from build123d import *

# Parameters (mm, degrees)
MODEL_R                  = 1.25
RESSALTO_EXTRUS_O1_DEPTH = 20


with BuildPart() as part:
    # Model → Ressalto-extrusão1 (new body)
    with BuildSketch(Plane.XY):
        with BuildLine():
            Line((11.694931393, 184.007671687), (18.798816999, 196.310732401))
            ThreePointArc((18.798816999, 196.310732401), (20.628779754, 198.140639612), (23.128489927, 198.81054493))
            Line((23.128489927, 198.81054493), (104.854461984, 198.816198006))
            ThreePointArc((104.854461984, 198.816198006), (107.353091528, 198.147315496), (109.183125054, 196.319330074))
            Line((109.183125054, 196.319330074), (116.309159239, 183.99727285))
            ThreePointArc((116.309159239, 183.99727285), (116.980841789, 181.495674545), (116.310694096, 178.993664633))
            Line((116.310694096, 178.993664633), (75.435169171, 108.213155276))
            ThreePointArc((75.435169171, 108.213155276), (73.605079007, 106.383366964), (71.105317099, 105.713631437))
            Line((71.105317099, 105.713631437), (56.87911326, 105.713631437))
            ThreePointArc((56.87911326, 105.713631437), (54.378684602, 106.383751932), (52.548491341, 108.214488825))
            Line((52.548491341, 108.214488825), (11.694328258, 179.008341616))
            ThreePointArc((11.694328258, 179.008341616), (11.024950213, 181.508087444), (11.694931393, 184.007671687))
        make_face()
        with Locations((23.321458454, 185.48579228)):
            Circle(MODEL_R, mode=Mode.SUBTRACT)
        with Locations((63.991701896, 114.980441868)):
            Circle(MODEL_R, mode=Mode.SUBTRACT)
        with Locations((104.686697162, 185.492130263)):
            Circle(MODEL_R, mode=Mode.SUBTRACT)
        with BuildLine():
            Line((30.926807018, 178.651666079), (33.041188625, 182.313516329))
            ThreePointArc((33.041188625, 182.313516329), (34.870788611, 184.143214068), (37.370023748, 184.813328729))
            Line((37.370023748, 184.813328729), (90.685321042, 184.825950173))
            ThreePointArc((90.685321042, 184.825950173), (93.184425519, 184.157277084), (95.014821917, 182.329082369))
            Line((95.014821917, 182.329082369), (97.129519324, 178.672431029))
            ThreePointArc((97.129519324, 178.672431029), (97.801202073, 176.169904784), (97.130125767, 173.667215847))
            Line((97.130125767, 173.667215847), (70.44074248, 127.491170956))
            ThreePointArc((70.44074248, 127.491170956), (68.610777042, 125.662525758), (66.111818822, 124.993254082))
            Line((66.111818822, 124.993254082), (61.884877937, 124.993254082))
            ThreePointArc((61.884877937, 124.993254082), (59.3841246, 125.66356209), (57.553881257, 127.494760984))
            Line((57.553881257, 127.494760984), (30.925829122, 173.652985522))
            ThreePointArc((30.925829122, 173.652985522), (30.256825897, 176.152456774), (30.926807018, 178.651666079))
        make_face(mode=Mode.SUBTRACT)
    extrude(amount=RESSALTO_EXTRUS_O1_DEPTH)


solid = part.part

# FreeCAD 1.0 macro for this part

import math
import FreeCAD as App
import Part
import Sketcher
from FreeCAD import Vector
Q = App.Units.Quantity

doc = App.newDocument("Part")
body = doc.addObject("PartDesign::Body", "Body")

sketch1 = body.newObject("Sketcher::SketchObject", "Sketch")
sketch1.AttachmentSupport = (doc.getObject("XY_Plane"), [""])
sketch1.MapMode = "FlatFace"
sketch1.addGeometry([
    Part.LineSegment(Vector(18.8, 196.3, 0), Vector(11.7, 184, 0)),
    Part.ArcOfCircle(Part.Circle(Vector(16, 181.5, 0), Vector(0, 0, 1), 5), math.radians(150), math.radians(210)),
    Part.LineSegment(Vector(11.7, 179, 0), Vector(52.5, 108.2, 0)),
    Part.ArcOfCircle(Part.Circle(Vector(56.9, 110.7, 0), Vector(0, 0, 1), 5), math.radians(-150), math.radians(-90)),
    Part.LineSegment(Vector(56.9, 105.7, 0), Vector(71.1, 105.7, 0)),
    Part.ArcOfCircle(Part.Circle(Vector(71.1, 110.7, 0), Vector(0, 0, 1), 5), math.radians(-90), math.radians(-30)),
    Part.LineSegment(Vector(75.4, 108.2, 0), Vector(116.3, 179, 0)),
    Part.ArcOfCircle(Part.Circle(Vector(112, 181.5, 0), Vector(0, 0, 1), 5), math.radians(-30), math.radians(30)),
    Part.LineSegment(Vector(116.3, 184, 0), Vector(109.2, 196.3, 0)),
    Part.ArcOfCircle(Part.Circle(Vector(104.9, 193.8, 0), Vector(0, 0, 1), 5), math.radians(30), math.radians(90)),
    Part.LineSegment(Vector(104.9, 198.8, 0), Vector(23.1, 198.8, 0)),
    Part.ArcOfCircle(Part.Circle(Vector(23.1, 193.8, 0), Vector(0, 0, 1), 5), math.radians(90), math.radians(150)),
    Part.Circle(Vector(64, 115, 0), Vector(0, 0, 1), 1.2),
    Part.LineSegment(Vector(30.9, 178.7, 0), Vector(33, 182.3, 0)),
    Part.ArcOfCircle(Part.Circle(Vector(37.4, 179.8, 0), Vector(0, 0, 1), 5), math.radians(90), math.radians(150)),
    Part.LineSegment(Vector(37.4, 184.8, 0), Vector(90.7, 184.8, 0)),
    Part.ArcOfCircle(Part.Circle(Vector(90.7, 179.8, 0), Vector(0, 0, 1), 5), math.radians(30), math.radians(90)),
    Part.LineSegment(Vector(95, 182.3, 0), Vector(97.1, 178.7, 0)),
    Part.ArcOfCircle(Part.Circle(Vector(92.8, 176.2, 0), Vector(0, 0, 1), 5), math.radians(-30), math.radians(30)),
    Part.LineSegment(Vector(97.1, 173.7, 0), Vector(70.4, 127.5, 0)),
    Part.ArcOfCircle(Part.Circle(Vector(66.1, 130, 0), Vector(0, 0, 1), 5), math.radians(-90), math.radians(-30)),
    Part.LineSegment(Vector(66.1, 125, 0), Vector(61.9, 125, 0)),
    Part.ArcOfCircle(Part.Circle(Vector(61.9, 130, 0), Vector(0, 0, 1), 5), math.radians(-150), math.radians(-90)),
    Part.LineSegment(Vector(57.6, 127.5, 0), Vector(30.9, 173.7, 0)),
    Part.ArcOfCircle(Part.Circle(Vector(35.3, 176.2, 0), Vector(0, 0, 1), 5), math.radians(150), math.radians(210)),
    Part.Circle(Vector(104.7, 185.5, 0), Vector(0, 0, 1), 1.2),
    Part.Circle(Vector(23.3, 185.5, 0), Vector(0, 0, 1), 1.2),
], False)
sketch1.addConstraint([
    Sketcher.Constraint("Tangent", 0, 2, 1, 1),
    Sketcher.Constraint("Tangent", 1, 2, 2, 1),
    Sketcher.Constraint("Tangent", 2, 2, 3, 1),
    Sketcher.Constraint("Tangent", 3, 2, 4, 1),
    Sketcher.Constraint("Tangent", 4, 2, 5, 1),
    Sketcher.Constraint("Tangent", 5, 2, 6, 1),
    Sketcher.Constraint("Tangent", 6, 2, 7, 1),
    Sketcher.Constraint("Tangent", 7, 2, 8, 1),
    Sketcher.Constraint("Tangent", 8, 2, 9, 1),
    Sketcher.Constraint("Tangent", 9, 2, 10, 1),
    Sketcher.Constraint("Tangent", 10, 2, 11, 1),
    Sketcher.Constraint("Tangent", 11, 2, 0, 1),
    Sketcher.Constraint("Tangent", 13, 2, 14, 2),
    Sketcher.Constraint("Tangent", 14, 1, 15, 1),
    Sketcher.Constraint("Tangent", 15, 2, 16, 2),
    Sketcher.Constraint("Tangent", 16, 1, 17, 1),
    Sketcher.Constraint("Tangent", 17, 2, 18, 2),
    Sketcher.Constraint("Tangent", 18, 1, 19, 1),
    Sketcher.Constraint("Tangent", 19, 2, 20, 2),
    Sketcher.Constraint("Tangent", 20, 1, 21, 1),
    Sketcher.Constraint("Tangent", 21, 2, 22, 2),
    Sketcher.Constraint("Tangent", 22, 1, 23, 1),
    Sketcher.Constraint("Tangent", 23, 2, 24, 2),
    Sketcher.Constraint("Tangent", 24, 1, 13, 1),
    Sketcher.Constraint("Horizontal", 4),
    Sketcher.Constraint("Horizontal", 21),
    Sketcher.Constraint("Equal", 1, 3),
    Sketcher.Constraint("Equal", 3, 5),
    Sketcher.Constraint("Equal", 5, 7),
    Sketcher.Constraint("Equal", 7, 9),
    Sketcher.Constraint("Equal", 9, 11),
    Sketcher.Constraint("Equal", 11, 14),
    Sketcher.Constraint("Equal", 14, 16),
    Sketcher.Constraint("Equal", 16, 18),
    Sketcher.Constraint("Equal", 18, 20),
    Sketcher.Constraint("Equal", 20, 22),
    Sketcher.Constraint("Equal", 22, 24),
    Sketcher.Constraint("Equal", 12, 25),
    Sketcher.Constraint("Equal", 25, 26),
    Sketcher.Constraint("Parallel", 0, 13),
    Sketcher.Constraint("Parallel", 8, 17),
    Sketcher.Constraint("Radius", 1, Q("5 mm")),
    Sketcher.Constraint("Diameter", 12, Q("2.5 mm")),
    Sketcher.Constraint("Distance", 15, Q("53.315299 mm")),
    Sketcher.Constraint("DistanceX", 21, 2, 21, 1, Q("4.226941 mm")),
    Sketcher.Constraint("DistanceY", -1, 1, 9, 3, Q("193.816198 mm")),
    Sketcher.Constraint("DistanceX", -1, 1, 12, 3, Q("63.991702 mm")),
    Sketcher.Constraint("DistanceY", -1, 1, 18, 3, Q("176.169299 mm")),
    Sketcher.Constraint("DistanceY", 12, 3, 7, 3, Q("66.513699 mm")),
    Sketcher.Constraint("DistanceX", 14, 3, 9, 3, Q("67.4836 mm")),
    Sketcher.Constraint("DistanceX", 12, 3, 18, 3, Q("28.8095 mm")),
    Sketcher.Constraint("DistanceX", 20, 3, 5, 3, Q("4.993498 mm")),
    Sketcher.Constraint("DistanceY", 14, 3, 25, 3, Q("5.678801 mm")),
    Sketcher.Constraint("DistanceY", 25, 3, 8, 2, Q("10.8272 mm")),
    Sketcher.Constraint("DistanceX", 15, 2, 16, 1, Q("4.329501 mm")),
    Sketcher.Constraint("DistanceX", 15, 2, 17, 2, Q("6.444198 mm")),
    Sketcher.Constraint("DistanceX", 24, 1, 14, 3, Q("6.4444 mm")),
    Sketcher.Constraint("Distance", 2, Q("81.736358 mm")),
    Sketcher.Constraint("DistanceX", 4, 1, 4, 2, Q("14.226204 mm")),
    Sketcher.Constraint("DistanceX", -1, 1, 1, 3, Q("16.02495 mm")),
    Sketcher.Constraint("DistanceY", -1, 1, 3, 3, Q("110.713631 mm")),
    Sketcher.Constraint("DistanceY", -1, 1, 7, 3, Q("181.494141 mm")),
    Sketcher.Constraint("DistanceX", -1, 1, 20, 3, Q("66.111819 mm")),
    Sketcher.Constraint("DistanceY", -1, 1, 24, 3, Q("176.151479 mm")),
    Sketcher.Constraint("DistanceX", -1, 1, 26, 3, Q("23.321458 mm")),
    Sketcher.Constraint("DistanceX", -1, 1, 9, 2, Q("104.854462 mm")),
    Sketcher.Constraint("DistanceY", -1, 1, 19, 2, Q("127.491171 mm")),
    Sketcher.Constraint("DistanceX", 25, 3, 9, 3, Q("0.168111 mm")),
    Sketcher.Constraint("DistanceY", 1, 3, 26, 3, Q("3.978308 mm")),
])
pad1 = body.newObject("PartDesign::Pad", "Pad")
pad1.Profile = sketch1
pad1.Length = 20

doc.recompute()
